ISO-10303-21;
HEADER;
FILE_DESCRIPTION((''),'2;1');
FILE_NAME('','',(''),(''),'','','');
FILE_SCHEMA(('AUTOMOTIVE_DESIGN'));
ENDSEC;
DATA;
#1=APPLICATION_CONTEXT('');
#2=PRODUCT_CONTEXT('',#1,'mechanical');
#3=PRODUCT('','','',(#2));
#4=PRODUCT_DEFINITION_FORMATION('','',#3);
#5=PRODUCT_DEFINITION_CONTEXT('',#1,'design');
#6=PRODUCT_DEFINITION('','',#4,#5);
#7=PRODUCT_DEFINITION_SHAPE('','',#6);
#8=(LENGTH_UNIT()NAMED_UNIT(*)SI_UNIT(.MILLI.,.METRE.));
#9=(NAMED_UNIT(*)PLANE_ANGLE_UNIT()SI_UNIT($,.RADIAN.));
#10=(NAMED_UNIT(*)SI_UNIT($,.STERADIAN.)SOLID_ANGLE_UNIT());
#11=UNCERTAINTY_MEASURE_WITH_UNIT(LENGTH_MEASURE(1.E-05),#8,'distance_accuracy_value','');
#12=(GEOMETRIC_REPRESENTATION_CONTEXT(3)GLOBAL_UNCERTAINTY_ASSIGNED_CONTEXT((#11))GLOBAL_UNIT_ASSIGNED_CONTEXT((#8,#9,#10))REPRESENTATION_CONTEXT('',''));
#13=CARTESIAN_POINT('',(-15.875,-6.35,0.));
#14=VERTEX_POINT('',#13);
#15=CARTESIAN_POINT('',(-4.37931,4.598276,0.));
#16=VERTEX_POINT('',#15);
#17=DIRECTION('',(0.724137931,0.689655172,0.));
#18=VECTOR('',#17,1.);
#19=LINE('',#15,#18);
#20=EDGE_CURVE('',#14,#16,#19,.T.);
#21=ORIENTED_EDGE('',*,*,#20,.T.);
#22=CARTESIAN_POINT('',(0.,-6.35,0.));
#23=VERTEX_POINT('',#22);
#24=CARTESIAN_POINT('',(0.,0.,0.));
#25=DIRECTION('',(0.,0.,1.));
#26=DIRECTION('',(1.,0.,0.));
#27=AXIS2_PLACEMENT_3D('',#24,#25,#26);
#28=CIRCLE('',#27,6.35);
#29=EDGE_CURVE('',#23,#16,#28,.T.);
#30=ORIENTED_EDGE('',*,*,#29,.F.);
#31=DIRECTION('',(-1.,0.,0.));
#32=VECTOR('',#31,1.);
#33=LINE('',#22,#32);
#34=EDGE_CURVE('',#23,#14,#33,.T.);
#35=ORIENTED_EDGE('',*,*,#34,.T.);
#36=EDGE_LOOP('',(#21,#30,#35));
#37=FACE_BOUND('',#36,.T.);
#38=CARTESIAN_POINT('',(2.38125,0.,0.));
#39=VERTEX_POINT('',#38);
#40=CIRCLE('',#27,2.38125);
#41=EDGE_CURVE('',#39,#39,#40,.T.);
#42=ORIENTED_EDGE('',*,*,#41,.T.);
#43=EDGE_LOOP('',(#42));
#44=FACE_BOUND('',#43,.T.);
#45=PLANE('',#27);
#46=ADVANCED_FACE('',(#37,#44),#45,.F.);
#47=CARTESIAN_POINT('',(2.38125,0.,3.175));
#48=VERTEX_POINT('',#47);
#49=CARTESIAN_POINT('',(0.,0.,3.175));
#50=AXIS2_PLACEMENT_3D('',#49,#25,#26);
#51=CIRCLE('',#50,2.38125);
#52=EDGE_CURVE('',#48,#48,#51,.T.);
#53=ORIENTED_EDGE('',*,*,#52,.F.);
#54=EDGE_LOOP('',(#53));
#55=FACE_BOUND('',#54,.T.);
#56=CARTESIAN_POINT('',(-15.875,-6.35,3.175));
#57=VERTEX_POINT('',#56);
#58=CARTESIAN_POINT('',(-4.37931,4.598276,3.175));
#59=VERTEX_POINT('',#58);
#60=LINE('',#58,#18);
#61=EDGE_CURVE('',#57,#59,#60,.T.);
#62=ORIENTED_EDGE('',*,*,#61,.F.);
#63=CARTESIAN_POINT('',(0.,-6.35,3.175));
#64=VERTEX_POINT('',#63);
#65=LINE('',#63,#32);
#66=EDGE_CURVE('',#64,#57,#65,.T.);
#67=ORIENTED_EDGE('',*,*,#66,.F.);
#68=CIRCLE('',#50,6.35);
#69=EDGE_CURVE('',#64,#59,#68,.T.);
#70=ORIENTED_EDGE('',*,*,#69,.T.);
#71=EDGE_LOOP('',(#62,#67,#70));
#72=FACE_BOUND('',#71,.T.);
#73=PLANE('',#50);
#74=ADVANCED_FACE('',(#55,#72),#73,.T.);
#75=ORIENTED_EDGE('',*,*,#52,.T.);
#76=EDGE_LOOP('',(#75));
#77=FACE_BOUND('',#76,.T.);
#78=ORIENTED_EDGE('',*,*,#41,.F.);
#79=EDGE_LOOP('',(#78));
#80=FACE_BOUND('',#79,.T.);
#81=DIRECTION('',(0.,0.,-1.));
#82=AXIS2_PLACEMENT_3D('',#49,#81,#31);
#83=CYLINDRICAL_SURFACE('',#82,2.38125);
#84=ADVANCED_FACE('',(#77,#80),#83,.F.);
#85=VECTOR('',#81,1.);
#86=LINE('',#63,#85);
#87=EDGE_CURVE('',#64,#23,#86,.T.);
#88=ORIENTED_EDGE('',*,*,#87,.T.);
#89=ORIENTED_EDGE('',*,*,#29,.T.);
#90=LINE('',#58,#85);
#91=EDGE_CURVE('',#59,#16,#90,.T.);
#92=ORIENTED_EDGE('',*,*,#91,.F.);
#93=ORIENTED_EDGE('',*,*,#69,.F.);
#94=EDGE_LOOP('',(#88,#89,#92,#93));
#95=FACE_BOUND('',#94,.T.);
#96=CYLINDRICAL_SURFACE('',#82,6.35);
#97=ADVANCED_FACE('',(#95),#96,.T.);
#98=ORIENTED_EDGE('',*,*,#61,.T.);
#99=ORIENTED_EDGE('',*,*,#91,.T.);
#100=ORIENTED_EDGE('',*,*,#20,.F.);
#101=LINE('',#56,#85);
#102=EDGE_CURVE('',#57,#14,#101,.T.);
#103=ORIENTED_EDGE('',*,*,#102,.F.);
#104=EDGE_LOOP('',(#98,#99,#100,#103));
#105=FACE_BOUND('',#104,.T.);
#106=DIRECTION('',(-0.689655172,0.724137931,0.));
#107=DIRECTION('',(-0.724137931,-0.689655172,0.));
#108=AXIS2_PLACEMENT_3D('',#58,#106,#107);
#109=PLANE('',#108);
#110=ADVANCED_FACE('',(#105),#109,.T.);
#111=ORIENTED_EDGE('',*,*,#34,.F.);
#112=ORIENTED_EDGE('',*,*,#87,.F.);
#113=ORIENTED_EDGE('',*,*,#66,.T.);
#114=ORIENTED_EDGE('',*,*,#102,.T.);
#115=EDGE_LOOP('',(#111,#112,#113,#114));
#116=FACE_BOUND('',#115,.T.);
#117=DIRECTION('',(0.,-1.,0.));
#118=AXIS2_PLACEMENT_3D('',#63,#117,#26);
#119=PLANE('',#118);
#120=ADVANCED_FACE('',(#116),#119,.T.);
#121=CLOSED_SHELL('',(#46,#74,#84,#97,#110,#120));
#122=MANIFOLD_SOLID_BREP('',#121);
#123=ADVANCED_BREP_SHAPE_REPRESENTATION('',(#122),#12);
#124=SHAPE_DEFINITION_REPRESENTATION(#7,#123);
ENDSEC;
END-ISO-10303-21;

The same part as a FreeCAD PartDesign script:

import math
import FreeCAD as App
import Part
import Sketcher

V = App.Vector
Q = App.Units.Quantity

doc = App.newDocument("Part")
params = doc.addObject("Spreadsheet::Sheet", "Params")
for row, (alias, value) in enumerate([
    ("sketch1_radius", "0.25 in"),
    ("sketch1_diameter", "0.1875 in"),
    ("sketch1_width", "0.625 in"),
    ("pad1_length", "0.125 in"),
], start=1):
    params.set(f"A{row}", alias)
    params.set(f"B{row}", "=" + value)
    params.setAlias(f"B{row}", alias)

body = doc.addObject("PartDesign::Body", "Body")

sketch1 = doc.addObject("Sketcher::SketchObject", "Sketch")
body.addObject(sketch1)
sketch1.AttachmentSupport = (doc.XY_Plane, [""])
sketch1.MapMode = "FlatFace"
sketch1.addGeometry([
    Part.LineSegment(V(-15.9, -6.3, 0), V(0, -6.3, 0)),
    Part.ArcOfCircle(Part.Circle(V(0, 0, 0), V(0, 0, 1), 6.3), math.radians(-90), math.radians(134)),
    Part.LineSegment(V(-4.4, 4.6, 0), V(-15.9, -6.3, 0)),
    Part.Circle(V(0, 0, 0), V(0, 0, 1), 2.4),
], False)
sketch1.addConstraint([
    Sketcher.Constraint("Tangent", 0, 2, 1, 1),
    Sketcher.Constraint("Tangent", 1, 2, 2, 1),
    Sketcher.Constraint("Coincident", 2, 2, 0, 1),
    Sketcher.Constraint("Horizontal", 0),
    Sketcher.Constraint("Coincident", 1, 3, -1, 1),
    Sketcher.Constraint("Coincident", 3, 3, -1, 1),
    Sketcher.Constraint("Radius", 1, Q("0.25 in")),
    Sketcher.Constraint("Diameter", 3, Q("0.1875 in")),
    Sketcher.Constraint("DistanceX", 0, 1, 0, 2, Q("0.625 in")),
])
sketch1.setExpression("Constraints[6]", "Params.sketch1_radius")
sketch1.setExpression("Constraints[7]", "Params.sketch1_diameter")
sketch1.setExpression("Constraints[8]", "Params.sketch1_width")
pad1 = doc.addObject("PartDesign::Pad", "Pad")
body.addObject(pad1)
pad1.Profile = sketch1
pad1.setExpression("Length", "Params.pad1_length")

doc.recompute()
